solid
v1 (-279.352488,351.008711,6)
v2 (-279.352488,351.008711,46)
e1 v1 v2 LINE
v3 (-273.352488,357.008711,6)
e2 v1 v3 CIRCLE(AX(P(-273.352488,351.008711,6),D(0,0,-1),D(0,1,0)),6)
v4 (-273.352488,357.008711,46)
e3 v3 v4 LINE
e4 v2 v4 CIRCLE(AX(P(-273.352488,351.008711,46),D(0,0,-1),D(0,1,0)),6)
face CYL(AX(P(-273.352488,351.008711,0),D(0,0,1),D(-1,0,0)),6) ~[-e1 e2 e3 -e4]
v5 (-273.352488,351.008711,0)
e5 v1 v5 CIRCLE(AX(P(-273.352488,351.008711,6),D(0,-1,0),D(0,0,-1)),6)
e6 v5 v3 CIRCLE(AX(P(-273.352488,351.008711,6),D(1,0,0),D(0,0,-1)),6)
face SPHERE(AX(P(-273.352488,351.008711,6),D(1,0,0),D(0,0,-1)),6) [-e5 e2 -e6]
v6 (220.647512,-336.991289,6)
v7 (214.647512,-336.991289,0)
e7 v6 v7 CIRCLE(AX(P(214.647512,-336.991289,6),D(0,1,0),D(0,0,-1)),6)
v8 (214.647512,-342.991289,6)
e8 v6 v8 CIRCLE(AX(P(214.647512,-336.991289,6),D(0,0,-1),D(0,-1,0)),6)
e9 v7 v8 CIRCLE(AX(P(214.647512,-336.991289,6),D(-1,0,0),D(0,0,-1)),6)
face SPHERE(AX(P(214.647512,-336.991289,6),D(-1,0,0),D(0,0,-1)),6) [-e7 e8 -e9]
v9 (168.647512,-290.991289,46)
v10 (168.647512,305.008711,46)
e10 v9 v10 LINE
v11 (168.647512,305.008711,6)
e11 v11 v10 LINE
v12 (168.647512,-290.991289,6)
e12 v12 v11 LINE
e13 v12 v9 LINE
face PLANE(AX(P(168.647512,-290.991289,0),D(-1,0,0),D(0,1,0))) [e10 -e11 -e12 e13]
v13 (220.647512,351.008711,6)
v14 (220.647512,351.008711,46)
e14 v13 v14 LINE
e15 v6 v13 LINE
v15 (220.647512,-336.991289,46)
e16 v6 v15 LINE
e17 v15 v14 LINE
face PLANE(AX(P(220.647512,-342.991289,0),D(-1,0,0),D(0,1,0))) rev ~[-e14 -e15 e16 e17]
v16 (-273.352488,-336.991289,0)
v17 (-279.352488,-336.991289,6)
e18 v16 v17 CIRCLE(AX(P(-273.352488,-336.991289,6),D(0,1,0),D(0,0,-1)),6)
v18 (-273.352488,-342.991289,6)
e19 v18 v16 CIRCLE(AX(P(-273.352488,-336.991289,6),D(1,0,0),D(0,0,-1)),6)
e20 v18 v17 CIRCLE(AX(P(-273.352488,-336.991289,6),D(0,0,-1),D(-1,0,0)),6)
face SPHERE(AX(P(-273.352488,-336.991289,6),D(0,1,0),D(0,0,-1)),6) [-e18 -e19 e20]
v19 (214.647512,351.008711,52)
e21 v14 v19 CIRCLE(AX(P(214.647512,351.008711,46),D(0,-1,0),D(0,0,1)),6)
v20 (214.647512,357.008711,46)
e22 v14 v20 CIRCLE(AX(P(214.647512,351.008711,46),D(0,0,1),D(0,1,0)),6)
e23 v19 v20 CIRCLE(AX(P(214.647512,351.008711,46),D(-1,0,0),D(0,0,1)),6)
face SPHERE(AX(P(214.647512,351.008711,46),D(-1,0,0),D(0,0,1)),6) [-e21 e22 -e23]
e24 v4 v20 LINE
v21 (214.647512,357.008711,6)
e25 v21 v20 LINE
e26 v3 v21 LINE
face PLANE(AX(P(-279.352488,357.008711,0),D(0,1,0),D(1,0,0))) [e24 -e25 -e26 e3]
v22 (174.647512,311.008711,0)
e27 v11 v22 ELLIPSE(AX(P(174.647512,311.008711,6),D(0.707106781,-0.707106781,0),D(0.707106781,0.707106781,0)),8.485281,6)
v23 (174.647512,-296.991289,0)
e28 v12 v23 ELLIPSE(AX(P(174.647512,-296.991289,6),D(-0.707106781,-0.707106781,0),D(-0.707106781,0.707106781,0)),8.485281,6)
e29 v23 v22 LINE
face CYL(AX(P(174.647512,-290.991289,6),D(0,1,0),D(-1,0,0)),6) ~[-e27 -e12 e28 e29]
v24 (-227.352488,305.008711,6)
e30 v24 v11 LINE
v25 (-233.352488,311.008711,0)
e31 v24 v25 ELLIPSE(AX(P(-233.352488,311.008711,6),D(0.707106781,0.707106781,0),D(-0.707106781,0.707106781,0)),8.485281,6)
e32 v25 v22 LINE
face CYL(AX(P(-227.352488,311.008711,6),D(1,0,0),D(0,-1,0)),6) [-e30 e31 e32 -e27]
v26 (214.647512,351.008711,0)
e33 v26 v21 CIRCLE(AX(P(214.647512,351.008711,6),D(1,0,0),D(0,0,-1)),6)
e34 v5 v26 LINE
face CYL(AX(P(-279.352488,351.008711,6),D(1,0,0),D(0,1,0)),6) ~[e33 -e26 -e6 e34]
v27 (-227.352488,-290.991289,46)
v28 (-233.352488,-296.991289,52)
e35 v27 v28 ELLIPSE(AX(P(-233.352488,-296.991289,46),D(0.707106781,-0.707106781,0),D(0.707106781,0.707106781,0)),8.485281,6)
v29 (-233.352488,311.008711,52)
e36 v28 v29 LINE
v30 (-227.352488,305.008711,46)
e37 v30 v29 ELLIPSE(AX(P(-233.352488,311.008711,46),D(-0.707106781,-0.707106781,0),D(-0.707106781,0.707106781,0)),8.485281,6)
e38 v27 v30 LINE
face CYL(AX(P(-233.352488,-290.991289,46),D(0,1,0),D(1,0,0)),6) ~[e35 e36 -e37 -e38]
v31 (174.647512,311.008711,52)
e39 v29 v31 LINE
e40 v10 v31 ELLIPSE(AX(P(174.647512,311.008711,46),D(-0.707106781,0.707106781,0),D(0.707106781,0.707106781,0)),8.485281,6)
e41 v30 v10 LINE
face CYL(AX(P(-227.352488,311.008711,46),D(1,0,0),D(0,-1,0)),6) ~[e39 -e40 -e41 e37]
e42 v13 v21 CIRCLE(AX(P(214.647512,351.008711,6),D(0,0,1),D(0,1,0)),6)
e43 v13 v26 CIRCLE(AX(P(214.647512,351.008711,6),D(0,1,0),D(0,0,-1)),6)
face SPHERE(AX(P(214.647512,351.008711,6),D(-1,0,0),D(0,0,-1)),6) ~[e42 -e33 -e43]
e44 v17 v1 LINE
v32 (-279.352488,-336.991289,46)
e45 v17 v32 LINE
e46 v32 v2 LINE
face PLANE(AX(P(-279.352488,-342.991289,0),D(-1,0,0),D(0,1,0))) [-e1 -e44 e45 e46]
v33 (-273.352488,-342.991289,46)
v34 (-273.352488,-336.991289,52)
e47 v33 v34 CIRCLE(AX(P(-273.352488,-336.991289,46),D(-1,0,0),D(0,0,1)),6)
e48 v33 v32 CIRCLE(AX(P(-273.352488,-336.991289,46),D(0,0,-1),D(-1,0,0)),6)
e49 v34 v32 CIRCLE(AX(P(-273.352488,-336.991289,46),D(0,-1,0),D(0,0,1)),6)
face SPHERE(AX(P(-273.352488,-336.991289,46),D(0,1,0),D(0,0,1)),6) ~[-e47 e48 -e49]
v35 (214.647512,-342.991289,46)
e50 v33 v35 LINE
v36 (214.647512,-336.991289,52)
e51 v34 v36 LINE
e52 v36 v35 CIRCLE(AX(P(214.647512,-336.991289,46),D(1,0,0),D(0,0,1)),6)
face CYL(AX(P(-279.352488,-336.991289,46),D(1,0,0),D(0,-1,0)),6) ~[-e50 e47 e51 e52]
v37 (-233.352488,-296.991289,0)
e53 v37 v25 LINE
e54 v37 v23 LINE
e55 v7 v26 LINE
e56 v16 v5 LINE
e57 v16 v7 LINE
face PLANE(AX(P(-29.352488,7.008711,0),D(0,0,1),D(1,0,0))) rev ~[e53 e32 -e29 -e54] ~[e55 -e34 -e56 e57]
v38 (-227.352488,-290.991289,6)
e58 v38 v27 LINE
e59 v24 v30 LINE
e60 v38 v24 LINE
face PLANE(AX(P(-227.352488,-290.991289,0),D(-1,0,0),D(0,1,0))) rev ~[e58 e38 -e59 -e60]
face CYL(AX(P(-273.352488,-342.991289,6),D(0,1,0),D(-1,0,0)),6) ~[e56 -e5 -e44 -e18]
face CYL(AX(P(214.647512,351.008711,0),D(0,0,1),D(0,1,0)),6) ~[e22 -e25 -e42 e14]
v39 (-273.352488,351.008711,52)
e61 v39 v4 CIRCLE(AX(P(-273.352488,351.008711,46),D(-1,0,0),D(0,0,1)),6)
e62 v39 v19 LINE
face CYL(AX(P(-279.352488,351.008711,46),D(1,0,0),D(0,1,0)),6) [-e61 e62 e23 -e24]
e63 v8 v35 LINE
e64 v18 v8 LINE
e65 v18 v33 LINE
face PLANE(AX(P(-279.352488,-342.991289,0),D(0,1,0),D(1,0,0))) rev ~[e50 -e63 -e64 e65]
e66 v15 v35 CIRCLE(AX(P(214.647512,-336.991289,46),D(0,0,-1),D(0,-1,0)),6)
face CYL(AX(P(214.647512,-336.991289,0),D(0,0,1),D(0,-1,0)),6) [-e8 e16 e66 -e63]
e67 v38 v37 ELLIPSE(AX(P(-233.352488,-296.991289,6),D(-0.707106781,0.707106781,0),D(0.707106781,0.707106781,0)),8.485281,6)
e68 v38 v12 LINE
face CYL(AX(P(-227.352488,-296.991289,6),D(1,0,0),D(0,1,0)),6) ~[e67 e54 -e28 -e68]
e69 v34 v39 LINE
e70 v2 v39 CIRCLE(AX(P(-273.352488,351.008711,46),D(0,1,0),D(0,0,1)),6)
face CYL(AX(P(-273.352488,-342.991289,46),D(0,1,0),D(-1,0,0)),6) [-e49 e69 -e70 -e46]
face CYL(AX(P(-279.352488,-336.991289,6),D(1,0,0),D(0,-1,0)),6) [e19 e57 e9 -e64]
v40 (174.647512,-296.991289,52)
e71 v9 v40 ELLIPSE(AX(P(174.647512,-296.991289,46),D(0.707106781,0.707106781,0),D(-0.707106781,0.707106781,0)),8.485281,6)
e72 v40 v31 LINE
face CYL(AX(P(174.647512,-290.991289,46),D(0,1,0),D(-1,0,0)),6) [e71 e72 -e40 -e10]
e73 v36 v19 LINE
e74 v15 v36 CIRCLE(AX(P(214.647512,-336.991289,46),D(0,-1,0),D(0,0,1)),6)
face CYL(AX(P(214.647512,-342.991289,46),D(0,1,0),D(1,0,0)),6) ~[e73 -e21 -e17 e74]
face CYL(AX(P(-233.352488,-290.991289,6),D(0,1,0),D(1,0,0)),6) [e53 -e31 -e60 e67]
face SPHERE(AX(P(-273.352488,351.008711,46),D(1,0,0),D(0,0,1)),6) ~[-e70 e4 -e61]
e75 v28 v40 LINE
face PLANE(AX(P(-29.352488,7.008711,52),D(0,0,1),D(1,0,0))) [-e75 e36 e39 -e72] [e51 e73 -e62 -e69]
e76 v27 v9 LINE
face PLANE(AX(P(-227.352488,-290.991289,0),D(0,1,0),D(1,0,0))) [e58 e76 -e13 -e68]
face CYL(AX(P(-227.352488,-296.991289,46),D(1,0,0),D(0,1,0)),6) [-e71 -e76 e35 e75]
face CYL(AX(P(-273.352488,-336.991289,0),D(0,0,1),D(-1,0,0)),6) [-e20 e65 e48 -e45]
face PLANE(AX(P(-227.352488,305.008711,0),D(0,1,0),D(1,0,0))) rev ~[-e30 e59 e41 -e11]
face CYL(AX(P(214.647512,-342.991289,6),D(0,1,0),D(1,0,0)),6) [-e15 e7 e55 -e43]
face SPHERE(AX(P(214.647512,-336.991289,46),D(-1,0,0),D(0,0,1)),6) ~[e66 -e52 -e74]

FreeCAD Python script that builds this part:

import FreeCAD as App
import Part
import Sketcher
Q = App.Units.Quantity


def edges_at(feature, points):
    """Names of the edges that pass closest to the given points."""
    edges = feature.Shape.Edges
    near = lambda p: min(range(len(edges)), key=lambda i: edges[i].distToShape(Part.Vertex(*p))[0])
    return sorted({f"Edge{near(p) + 1}" for p in points})


def add_polygon(sketch, points):
    """Adds a closed chain of lines whose ends are joined by coincident constraints."""
    first, n = sketch.GeometryCount, len(points)
    for a, b in zip(points, points[1:] + points[:1]):
        sketch.addGeometry(Part.LineSegment(App.Vector(*a, 0), App.Vector(*b, 0)), False)
    for i in range(n):
        sketch.addConstraint(Sketcher.Constraint("Coincident", first + i, 2, first + (i + 1) % n, 1))

doc = App.newDocument("Part")
body = doc.addObject("PartDesign::Body", "Body")

sketch1 = doc.addObject("Sketcher::SketchObject", "Sketch")
body.addObject(sketch1)
sketch1.AttachmentSupport = (doc.XY_Plane, [""])
sketch1.MapMode = "FlatFace"
add_polygon(sketch1, [(-279.352488, 357.008711), (-279.352488, -342.991289), (220.647512, -342.991289), (220.647512, 357.008711)])
add_polygon(sketch1, [(168.647512, -290.991289), (-227.352488, -290.991289), (-227.352488, 305.008711), (168.647512, 305.008711)])
sketch1.addConstraint([
    Sketcher.Constraint("Vertical", 0),
    Sketcher.Constraint("Horizontal", 1),
    Sketcher.Constraint("Vertical", 2),
    Sketcher.Constraint("Horizontal", 3),
    Sketcher.Constraint("Horizontal", 4),
    Sketcher.Constraint("Vertical", 5),
    Sketcher.Constraint("Horizontal", 6),
    Sketcher.Constraint("Vertical", 7),
    Sketcher.Constraint("DistanceX", 1, 1, 1, 2, Q("500 mm")),
    Sketcher.Constraint("DistanceX", 4, 2, 4, 1, Q("396 mm")),
    Sketcher.Constraint("DistanceY", 0, 2, 0, 1, Q("700 mm")),
    Sketcher.Constraint("DistanceY", 5, 1, 5, 2, Q("596 mm")),
    Sketcher.Constraint("DistanceX", 0, 2, 4, 2, Q("52 mm")),
    Sketcher.Constraint("DistanceY", 0, 2, 4, 2, Q("52 mm")),
    Sketcher.Constraint("DistanceX", 0, 2, -1, 1, Q("279.352488 mm")),
    Sketcher.Constraint("DistanceY", 0, 2, -1, 1, Q("342.991289 mm")),
])
pad1 = doc.addObject("PartDesign::Pad", "Pad")
body.addObject(pad1)
pad1.Profile = sketch1
pad1.Length = 52
doc.recompute()

fillet = doc.addObject("PartDesign::Fillet", "Fillet")
body.addObject(fillet)
fillet.Base = (pad1, edges_at(pad1, [
    (-29.352, 357.009, 0),
    (-279.352, 7.009, 0),
    (-29.352, -342.991, 0),
    (220.648, 7.009, 0),
    (-227.352, 7.009, 0),
    (-29.352, 305.009, 0),
    (168.648, 7.009, 0),
    (-29.352, -290.991, 0),
    (-29.352, 357.009, 52),
    (-279.352, 7.009, 52),
    (-29.352, -342.991, 52),
    (220.648, 7.009, 52),
    (-227.352, 7.009, 52),
    (-29.352, 305.009, 52),
    (168.648, 7.009, 52),
    (-29.352, -290.991, 52),
    (-279.352, 357.009, 26),
    (-279.352, -342.991, 26),
    (220.648, -342.991, 26),
    (220.648, 357.009, 26),
]))
fillet.Radius = 6

doc.recompute()
